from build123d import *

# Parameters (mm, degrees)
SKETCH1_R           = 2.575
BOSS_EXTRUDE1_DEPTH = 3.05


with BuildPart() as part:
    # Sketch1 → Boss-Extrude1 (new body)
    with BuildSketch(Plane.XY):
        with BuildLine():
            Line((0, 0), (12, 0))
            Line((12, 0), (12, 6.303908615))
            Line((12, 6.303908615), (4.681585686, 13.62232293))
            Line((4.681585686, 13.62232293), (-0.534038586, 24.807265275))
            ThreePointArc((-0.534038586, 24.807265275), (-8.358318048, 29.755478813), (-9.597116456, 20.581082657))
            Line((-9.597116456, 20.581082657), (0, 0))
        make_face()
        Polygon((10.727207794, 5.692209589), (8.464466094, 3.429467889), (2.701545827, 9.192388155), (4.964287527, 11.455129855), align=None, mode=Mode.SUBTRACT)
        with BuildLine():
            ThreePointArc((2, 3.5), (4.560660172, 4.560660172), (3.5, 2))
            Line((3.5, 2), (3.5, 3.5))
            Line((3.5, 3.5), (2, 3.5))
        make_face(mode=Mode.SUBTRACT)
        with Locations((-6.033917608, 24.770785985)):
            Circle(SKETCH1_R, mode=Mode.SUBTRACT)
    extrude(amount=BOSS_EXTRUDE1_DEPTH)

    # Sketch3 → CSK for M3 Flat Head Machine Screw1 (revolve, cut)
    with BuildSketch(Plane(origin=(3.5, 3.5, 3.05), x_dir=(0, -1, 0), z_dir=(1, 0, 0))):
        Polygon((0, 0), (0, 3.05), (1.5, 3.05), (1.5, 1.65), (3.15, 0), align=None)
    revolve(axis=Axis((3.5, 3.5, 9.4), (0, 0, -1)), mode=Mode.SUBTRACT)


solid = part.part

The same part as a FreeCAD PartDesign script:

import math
import FreeCAD as App
import Part
import Sketcher
Q = App.Units.Quantity


def add_polygon(sketch, points):
    """Adds a closed chain of lines whose ends are joined by coincident constraints."""
    first, n = sketch.GeometryCount, len(points)
    for a, b in zip(points, points[1:] + points[:1]):
        sketch.addGeometry(Part.LineSegment(App.Vector(*a, 0), App.Vector(*b, 0)), False)
    for i in range(n):
        sketch.addConstraint(Sketcher.Constraint("Coincident", first + i, 2, first + (i + 1) % n, 1))

doc = App.newDocument("Part")
body = doc.addObject("PartDesign::Body", "Body")

sketch1 = body.newObject("Sketcher::SketchObject", "Sketch")
sketch1.AttachmentSupport = (doc.getObject("XY_Plane"), [""])
sketch1.MapMode = "FlatFace"
sketch1.addGeometry(Part.LineSegment(App.Vector(0, 0, 0), App.Vector(12, 0, 0)), False)
sketch1.addGeometry(Part.LineSegment(App.Vector(12, 0, 0), App.Vector(12, 6.3, 0)), False)
sketch1.addGeometry(Part.LineSegment(App.Vector(12, 6.3, 0), App.Vector(4.7, 13.6, 0)), False)
sketch1.addGeometry(Part.LineSegment(App.Vector(4.7, 13.6, 0), App.Vector(-0.5, 24.8, 0)), False)
sketch1.addGeometry(Part.ArcOfCircle(Part.Circle(App.Vector(-6, 24.8, 0), App.Vector(0, 0, 1), 5.5), math.radians(0), math.radians(230)), False)
sketch1.addGeometry(Part.LineSegment(App.Vector(-9.6, 20.6, 0), App.Vector(0, 0, 0)), False)
sketch1.addGeometry(Part.LineSegment(App.Vector(3.5, 3.5, 0), App.Vector(2, 3.5, 0)), False)
sketch1.addGeometry(Part.ArcOfCircle(Part.Circle(App.Vector(3.5, 3.5, 0), App.Vector(0, 0, 1), 1.5), math.radians(-90), math.radians(180)), False)
sketch1.addGeometry(Part.LineSegment(App.Vector(3.5, 2, 0), App.Vector(3.5, 3.5, 0)), False)
add_polygon(sketch1, [(5, 11.5), (10.7, 5.7), (8.5, 3.4), (2.7, 9.2)])
sketch1.addGeometry(Part.Circle(App.Vector(-6, 24.8, 0), App.Vector(0, 0, 1), 2.6), False)
sketch1.addConstraint(Sketcher.Constraint("Coincident", 0, 2, 1, 1))
sketch1.addConstraint(Sketcher.Constraint("Coincident", 1, 2, 2, 1))
sketch1.addConstraint(Sketcher.Constraint("Coincident", 2, 2, 3, 1))
sketch1.addConstraint(Sketcher.Constraint("Coincident", 3, 2, 4, 1))
sketch1.addConstraint(Sketcher.Constraint("Coincident", 4, 2, 5, 1))
sketch1.addConstraint(Sketcher.Constraint("Coincident", 5, 2, 0, 1))
sketch1.addConstraint(Sketcher.Constraint("Coincident", 6, 2, 7, 2))
sketch1.addConstraint(Sketcher.Constraint("Coincident", 7, 1, 8, 1))
sketch1.addConstraint(Sketcher.Constraint("Coincident", 8, 2, 6, 1))
sketch1.addConstraint(Sketcher.Constraint("Horizontal", 0))
sketch1.addConstraint(Sketcher.Constraint("Vertical", 1))
sketch1.addConstraint(Sketcher.Constraint("Horizontal", 6))
sketch1.addConstraint(Sketcher.Constraint("Vertical", 8))
sketch1.addConstraint(Sketcher.Constraint("Coincident", 5, 2, -1, 1))
sketch1.addConstraint(Sketcher.Constraint("Coincident", 13, 3, 4, 3))
sketch1.addConstraint(Sketcher.Constraint("Coincident", 8, 2, 7, 3))
sketch1.addConstraint(Sketcher.Constraint("Parallel", 3, 5))
sketch1.addConstraint(Sketcher.Constraint("Parallel", 2, 9))
sketch1.addConstraint(Sketcher.Constraint("Perpendicular", 9, 10))
sketch1.addConstraint(Sketcher.Constraint("Perpendicular", 10, 11))
sketch1.addConstraint(Sketcher.Constraint("Perpendicular", 11, 12))
sketch1.addConstraint(Sketcher.Constraint("Radius", 4, 5.5))
sketch1.addConstraint(Sketcher.Constraint("Radius", 7, 1.5))
sketch1.addConstraint(Sketcher.Constraint("Diameter", 13, 5.15))
sketch1.addConstraint(Sketcher.Constraint("DistanceX", 0, 1, 0, 2, 12.0))
sketch1.addConstraint(Sketcher.Constraint("Angle", 2, Q("135 deg")))
sketch1.addConstraint(Sketcher.Constraint("Angle", 3, Q("115 deg")))
sketch1.addConstraint(Sketcher.Constraint("DistanceX", -1, 1, 6, 2, 2.0))
sketch1.addConstraint(Sketcher.Constraint("DistanceY", -1, 1, 7, 1, 2.0))
sketch1.addConstraint(Sketcher.Constraint("Distance", 10, 3.2))
sketch1.addConstraint(Sketcher.Constraint("Distance", 9, 8.15))
sketch1.addConstraint(Sketcher.Constraint("Distance", 2, 10.349801))
sketch1.addConstraint(Sketcher.Constraint("DistanceY", 1, 1, 1, 2, 6.303909))
sketch1.addConstraint(Sketcher.Constraint("DistanceX", 4, 2, 4, 3, 3.563199))
sketch1.addConstraint(Sketcher.Constraint("DistanceY", 9, 2, 1, 2, 0.611699))
sketch1.addConstraint(Sketcher.Constraint("DistanceX", 2, 2, 12, 2, 0.282702))
sketch1.addConstraint(Sketcher.Constraint("Distance", 3, 12.341218))
pad1 = body.newObject("PartDesign::Pad", "Pad")
pad1.Profile = sketch1
pad1.Length = 3.05

sketch2 = body.newObject("Sketcher::SketchObject", "Sketch001")
sketch2.AttachmentSupport = (doc.getObject("YZ_Plane"), [""])
sketch2.MapMode = "FlatFace"
sketch2.AttachmentOffset = App.Placement(App.Vector(0, 0, 3.5), App.Rotation())
add_polygon(sketch2, [(3.5, 0), (3.5, 3), (0.3, 3), (2, 1.4), (2, 0)])
sketch2.addGeometry(Part.LineSegment(App.Vector(3.5, 3, 0), App.Vector(3.5, 0, 0)), True)
sketch2.addConstraint(Sketcher.Constraint("Vertical", 0))
sketch2.addConstraint(Sketcher.Constraint("Horizontal", 1))
sketch2.addConstraint(Sketcher.Constraint("Vertical", 3))
sketch2.addConstraint(Sketcher.Constraint("Horizontal", 4))
sketch2.addConstraint(Sketcher.Constraint("Vertical", 5))
sketch2.addConstraint(Sketcher.Constraint("Coincident", 5, 1, 0, 2))
sketch2.addConstraint(Sketcher.Constraint("PointOnObject", 3, 2, -1))
sketch2.addConstraint(Sketcher.Constraint("PointOnObject", 5, 2, -1))
sketch2.addConstraint(Sketcher.Constraint("Angle", 2, Q("-45 deg")))
sketch2.addConstraint(Sketcher.Constraint("DistanceX", 4, 1, 4, 2, 1.5))
sketch2.addConstraint(Sketcher.Constraint("DistanceY", 3, 2, 3, 1, 1.4))
sketch2.addConstraint(Sketcher.Constraint("DistanceX", -1, 1, 2, 2, 2.0))
sketch2.addConstraint(Sketcher.Constraint("DistanceX", 1, 2, 1, 1, 3.15))
groove = body.newObject("PartDesign::Groove", "Groove")
groove.Profile = sketch2
groove.ReferenceAxis = (sketch2, ["Axis0"])
groove.Angle = 360

doc.recompute()
